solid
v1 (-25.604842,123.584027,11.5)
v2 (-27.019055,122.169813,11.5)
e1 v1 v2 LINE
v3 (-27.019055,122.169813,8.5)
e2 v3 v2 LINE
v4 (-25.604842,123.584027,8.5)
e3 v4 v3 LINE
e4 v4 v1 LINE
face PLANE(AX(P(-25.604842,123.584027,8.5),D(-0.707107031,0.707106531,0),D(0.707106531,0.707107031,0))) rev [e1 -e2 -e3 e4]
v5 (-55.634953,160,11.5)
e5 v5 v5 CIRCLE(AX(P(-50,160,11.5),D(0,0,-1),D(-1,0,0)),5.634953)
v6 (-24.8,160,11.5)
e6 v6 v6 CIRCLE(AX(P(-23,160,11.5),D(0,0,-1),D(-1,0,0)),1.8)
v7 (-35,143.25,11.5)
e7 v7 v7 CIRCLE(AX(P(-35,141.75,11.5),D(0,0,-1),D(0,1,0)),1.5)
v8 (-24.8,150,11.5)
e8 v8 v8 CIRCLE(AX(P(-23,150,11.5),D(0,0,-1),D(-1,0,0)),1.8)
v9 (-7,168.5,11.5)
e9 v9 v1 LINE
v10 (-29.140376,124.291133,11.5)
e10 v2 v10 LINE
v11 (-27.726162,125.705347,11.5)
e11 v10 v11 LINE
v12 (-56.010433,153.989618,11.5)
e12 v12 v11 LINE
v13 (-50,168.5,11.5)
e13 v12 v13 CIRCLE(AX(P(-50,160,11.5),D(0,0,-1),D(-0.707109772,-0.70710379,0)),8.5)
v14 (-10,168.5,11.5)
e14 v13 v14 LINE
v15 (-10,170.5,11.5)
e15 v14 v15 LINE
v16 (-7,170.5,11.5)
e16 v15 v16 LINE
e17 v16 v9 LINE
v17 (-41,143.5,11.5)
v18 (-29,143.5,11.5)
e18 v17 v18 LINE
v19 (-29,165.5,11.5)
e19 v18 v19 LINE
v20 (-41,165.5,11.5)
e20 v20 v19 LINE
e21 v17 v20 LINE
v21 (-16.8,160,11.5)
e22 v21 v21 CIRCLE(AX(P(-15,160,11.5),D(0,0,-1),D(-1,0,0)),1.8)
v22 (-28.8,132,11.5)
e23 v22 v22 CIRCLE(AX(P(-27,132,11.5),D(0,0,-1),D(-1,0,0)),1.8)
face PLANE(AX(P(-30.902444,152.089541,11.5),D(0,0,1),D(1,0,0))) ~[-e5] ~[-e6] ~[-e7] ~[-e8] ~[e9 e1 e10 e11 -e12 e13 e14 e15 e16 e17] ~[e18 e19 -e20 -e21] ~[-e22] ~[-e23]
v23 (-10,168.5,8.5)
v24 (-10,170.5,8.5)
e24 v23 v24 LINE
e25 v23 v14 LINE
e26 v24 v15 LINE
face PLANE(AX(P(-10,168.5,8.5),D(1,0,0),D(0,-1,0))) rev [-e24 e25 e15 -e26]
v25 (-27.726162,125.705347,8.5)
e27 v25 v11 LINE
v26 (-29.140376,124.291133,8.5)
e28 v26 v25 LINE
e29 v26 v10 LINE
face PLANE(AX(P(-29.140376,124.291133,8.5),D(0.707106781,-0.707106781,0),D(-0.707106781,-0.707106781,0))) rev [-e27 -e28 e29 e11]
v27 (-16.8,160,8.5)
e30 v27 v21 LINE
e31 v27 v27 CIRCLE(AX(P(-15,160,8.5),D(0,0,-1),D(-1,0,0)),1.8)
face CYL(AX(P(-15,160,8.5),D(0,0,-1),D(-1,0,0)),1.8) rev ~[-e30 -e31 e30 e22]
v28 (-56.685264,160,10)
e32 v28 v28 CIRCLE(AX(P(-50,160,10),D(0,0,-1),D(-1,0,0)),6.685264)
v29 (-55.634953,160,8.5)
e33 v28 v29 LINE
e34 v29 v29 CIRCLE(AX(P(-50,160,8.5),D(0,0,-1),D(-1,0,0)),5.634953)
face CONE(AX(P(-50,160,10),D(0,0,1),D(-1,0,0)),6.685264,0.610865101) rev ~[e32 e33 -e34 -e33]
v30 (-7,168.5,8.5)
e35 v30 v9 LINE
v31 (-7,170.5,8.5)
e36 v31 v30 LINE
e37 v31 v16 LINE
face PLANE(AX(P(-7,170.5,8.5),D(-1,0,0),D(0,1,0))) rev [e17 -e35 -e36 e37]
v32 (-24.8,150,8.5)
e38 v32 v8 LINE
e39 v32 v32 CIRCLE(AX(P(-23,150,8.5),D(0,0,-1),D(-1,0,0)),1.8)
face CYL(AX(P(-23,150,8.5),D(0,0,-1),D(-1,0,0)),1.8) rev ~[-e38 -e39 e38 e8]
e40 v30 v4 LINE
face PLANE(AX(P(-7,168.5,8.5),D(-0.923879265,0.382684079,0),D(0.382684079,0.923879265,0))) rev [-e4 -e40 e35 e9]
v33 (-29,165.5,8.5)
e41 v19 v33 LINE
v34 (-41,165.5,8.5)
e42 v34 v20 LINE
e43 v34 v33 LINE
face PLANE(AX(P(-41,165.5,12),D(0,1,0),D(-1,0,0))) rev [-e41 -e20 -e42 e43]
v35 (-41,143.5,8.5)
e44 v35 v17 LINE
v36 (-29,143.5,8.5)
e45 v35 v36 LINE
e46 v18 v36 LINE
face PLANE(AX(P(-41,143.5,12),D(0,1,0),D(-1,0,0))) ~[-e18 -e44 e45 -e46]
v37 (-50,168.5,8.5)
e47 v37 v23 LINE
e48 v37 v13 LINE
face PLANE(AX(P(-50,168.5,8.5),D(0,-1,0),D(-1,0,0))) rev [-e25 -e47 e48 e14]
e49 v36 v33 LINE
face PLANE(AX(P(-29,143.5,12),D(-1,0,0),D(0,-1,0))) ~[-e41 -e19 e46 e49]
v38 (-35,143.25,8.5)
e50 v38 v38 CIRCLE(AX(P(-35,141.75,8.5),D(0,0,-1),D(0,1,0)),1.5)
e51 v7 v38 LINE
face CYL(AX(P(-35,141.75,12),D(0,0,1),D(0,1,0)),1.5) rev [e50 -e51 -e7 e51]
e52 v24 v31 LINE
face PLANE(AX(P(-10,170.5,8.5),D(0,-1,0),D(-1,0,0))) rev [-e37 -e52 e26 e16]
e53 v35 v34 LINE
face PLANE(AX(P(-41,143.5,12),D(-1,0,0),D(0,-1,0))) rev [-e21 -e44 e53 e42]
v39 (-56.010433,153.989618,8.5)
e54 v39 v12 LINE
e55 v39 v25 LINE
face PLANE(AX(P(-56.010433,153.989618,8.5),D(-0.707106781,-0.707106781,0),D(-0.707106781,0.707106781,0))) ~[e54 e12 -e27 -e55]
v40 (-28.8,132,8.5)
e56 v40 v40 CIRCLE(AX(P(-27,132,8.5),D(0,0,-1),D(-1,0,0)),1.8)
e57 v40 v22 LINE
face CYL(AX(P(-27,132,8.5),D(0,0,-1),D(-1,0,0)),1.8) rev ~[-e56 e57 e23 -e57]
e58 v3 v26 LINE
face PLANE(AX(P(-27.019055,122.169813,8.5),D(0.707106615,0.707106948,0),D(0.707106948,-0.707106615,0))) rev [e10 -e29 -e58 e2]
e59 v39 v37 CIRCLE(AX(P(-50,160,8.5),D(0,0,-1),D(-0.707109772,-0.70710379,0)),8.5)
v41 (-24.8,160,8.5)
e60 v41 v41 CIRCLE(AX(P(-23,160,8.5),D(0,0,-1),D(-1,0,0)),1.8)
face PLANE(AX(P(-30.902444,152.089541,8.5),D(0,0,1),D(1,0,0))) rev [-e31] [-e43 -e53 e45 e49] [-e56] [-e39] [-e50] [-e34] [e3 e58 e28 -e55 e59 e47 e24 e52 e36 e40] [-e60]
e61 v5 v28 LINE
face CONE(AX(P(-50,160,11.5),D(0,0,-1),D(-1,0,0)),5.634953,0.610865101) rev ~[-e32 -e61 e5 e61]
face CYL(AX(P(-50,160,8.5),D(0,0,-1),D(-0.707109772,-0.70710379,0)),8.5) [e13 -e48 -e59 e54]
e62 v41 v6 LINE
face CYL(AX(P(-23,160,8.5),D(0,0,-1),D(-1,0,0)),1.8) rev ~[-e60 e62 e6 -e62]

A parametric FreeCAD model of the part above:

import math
import FreeCAD as App
import Part
import Sketcher
from FreeCAD import Vector
Q = App.Units.Quantity

doc = App.newDocument("Part")
params = doc.addObject("Spreadsheet::Sheet", "Params")
for row, (alias, value) in enumerate([
    ("sketch1_diameter", "3 mm"),
    ("sketch1_width", "12 mm"),
    ("sketch1_height", "22 mm"),
    ("pad1_length", "35 mm"),
    ("sketch2_diameter", "16 mm"),
    ("sketch2_diameter2", "3.6 mm"),
    ("sketch2_radius", "8.5 mm"),
    ("sketch2_width", "40 mm"),
    ("sketch2_width2", "3 mm"),
    ("pad2_length", "3 mm"),
    ("sketch3_height", "3 mm"),
    ("revolution_angle", "360 deg"),
], start=1):
    params.set(f"A{row}", alias)
    params.set(f"B{row}", "=" + value)
    params.setAlias(f"B{row}", alias)

body = doc.addObject("PartDesign::Body", "Body")
body.AllowCompound = True

# Sketch on XY plane
sketch1 = doc.addObject("Sketcher::SketchObject", "Sketch")
body.addObject(sketch1)
sketch1.AttachmentSupport = (doc.XY_Plane, [""])
sketch1.MapMode = "FlatFace"
sketch1.AttachmentOffset = App.Placement(Vector(0, 0, 12), App.Rotation())
sketch1.addGeometry([
    Part.Circle(Vector(35, 141.8, 0), Vector(0, 0, 1), 1.5),  # 0
    Part.LineSegment(Vector(29, 143.5, 0), Vector(41, 143.5, 0)),  # 1
    Part.LineSegment(Vector(41, 143.5, 0), Vector(41, 165.5, 0)),  # 2
    Part.LineSegment(Vector(41, 165.5, 0), Vector(29, 165.5, 0)),  # 3
    Part.LineSegment(Vector(29, 165.5, 0), Vector(29, 143.5, 0)),  # 4
], False)
sketch1.addConstraint([
    Sketcher.Constraint("Coincident", 1, 2, 2, 1),
    Sketcher.Constraint("Coincident", 2, 2, 3, 1),
    Sketcher.Constraint("Coincident", 3, 2, 4, 1),
    Sketcher.Constraint("Coincident", 4, 2, 1, 1),
    Sketcher.Constraint("Horizontal", 1),
    Sketcher.Constraint("Vertical", 2),
    Sketcher.Constraint("Horizontal", 3),
    Sketcher.Constraint("Vertical", 4),
    Sketcher.Constraint("Diameter", 0, 3.0),
    Sketcher.Constraint("DistanceX", 1, 1, 1, 2, 12.0),
    Sketcher.Constraint("DistanceY", 2, 1, 2, 2, 22.0),
    Sketcher.Constraint("DistanceX", -1, 1, 0, 3, 35.0),
    Sketcher.Constraint("DistanceX", -1, 1, 1, 2, 41.0),
    Sketcher.Constraint("DistanceY", -1, 1, 1, 2, 143.5),
    Sketcher.Constraint("DistanceY", -1, 1, 0, 3, 141.75),
])
sketch1.setExpression("Constraints[8]", "Params.sketch1_diameter")
sketch1.setExpression("Constraints[9]", "Params.sketch1_width")
sketch1.setExpression("Constraints[10]", "Params.sketch1_height")
pad1 = doc.addObject("PartDesign::Pad", "Pad")
body.addObject(pad1)
pad1.Profile = sketch1
pad1.setExpression("Length", "Params.pad1_length")
pad1.Midplane = True
body2 = doc.addObject("PartDesign::Body", "Body001")

# Sketch on XY plane
sketch2 = doc.addObject("Sketcher::SketchObject", "Sketch001")
body2.addObject(sketch2)
sketch2.AttachmentSupport = (doc.getObject("XY_Plane001"), [""])
sketch2.MapMode = "FlatFace"
sketch2.AttachmentOffset = App.Placement(Vector(0, 0, 8.5), App.Rotation())
sketch2.addGeometry([
    Part.ArcOfCircle(Part.Circle(Vector(50, 160, 0), Vector(0, 0, 1), 8.5), math.radians(-45), math.radians(90)),  # 0
    Part.LineSegment(Vector(50, 168.5, 0), Vector(10, 168.5, 0)),  # 1
    Part.LineSegment(Vector(10, 168.5, 0), Vector(10, 170.5, 0)),  # 2
    Part.LineSegment(Vector(10, 170.5, 0), Vector(7, 170.5, 0)),  # 3
    Part.LineSegment(Vector(7, 170.5, 0), Vector(7, 168.5, 0)),  # 4
    Part.LineSegment(Vector(7, 168.5, 0), Vector(25.6, 123.6, 0)),  # 5
    Part.LineSegment(Vector(25.6, 123.6, 0), Vector(27, 122.2, 0)),  # 6
    Part.LineSegment(Vector(27, 122.2, 0), Vector(29.1, 124.3, 0)),  # 7
    Part.LineSegment(Vector(29.1, 124.3, 0), Vector(27.7, 125.7, 0)),  # 8
    Part.LineSegment(Vector(27.7, 125.7, 0), Vector(56, 154, 0)),  # 9
    Part.Circle(Vector(27, 132, 0), Vector(0, 0, 1), 1.8),  # 10
    Part.Circle(Vector(23, 150, 0), Vector(0, 0, 1), 1.8),  # 11
    Part.Circle(Vector(15, 160, 0), Vector(0, 0, 1), 1.8),  # 12
    Part.Circle(Vector(23, 160, 0), Vector(0, 0, 1), 1.8),  # 13
    Part.Circle(Vector(50, 160, 0), Vector(0, 0, 1), 8),  # 14
], False)
sketch2.addConstraint([
    Sketcher.Constraint("Tangent", 0, 2, 1, 1),
    Sketcher.Constraint("Coincident", 1, 2, 2, 1),
    Sketcher.Constraint("Coincident", 2, 2, 3, 1),
    Sketcher.Constraint("Coincident", 3, 2, 4, 1),
    Sketcher.Constraint("Coincident", 4, 2, 5, 1),
    Sketcher.Constraint("Coincident", 5, 2, 6, 1),
    Sketcher.Constraint("Coincident", 6, 2, 7, 1),
    Sketcher.Constraint("Coincident", 7, 2, 8, 1),
    Sketcher.Constraint("Coincident", 8, 2, 9, 1),
    Sketcher.Constraint("Coincident", 9, 2, 0, 1),
    Sketcher.Constraint("Horizontal", 1),
    Sketcher.Constraint("Vertical", 2),
    Sketcher.Constraint("Horizontal", 3),
    Sketcher.Constraint("Vertical", 4),
    Sketcher.Constraint("Coincident", 14, 3, 0, 3),
    Sketcher.Constraint("Equal", 10, 11),
    Sketcher.Constraint("Equal", 11, 12),
    Sketcher.Constraint("Equal", 12, 13),
    Sketcher.Constraint("Perpendicular", 6, 7),
    Sketcher.Constraint("Perpendicular", 7, 8),
    Sketcher.Constraint("Perpendicular", 8, 9),
    Sketcher.Constraint("Horizontal", 0, 3, 12, 3),
    Sketcher.Constraint("Horizontal", 12, 3, 13, 3),
    Sketcher.Constraint("Horizontal", 1, 2, 4, 2),
    Sketcher.Constraint("Vertical", 11, 3, 13, 3),
    Sketcher.Constraint("Equal", 6, 8),
    Sketcher.Constraint("Diameter", 14, 16.0),
    Sketcher.Constraint("Diameter", 10, 3.6),
    Sketcher.Constraint("Radius", 0, 8.5),
    Sketcher.Constraint("DistanceX", 1, 2, 1, 1, 40.0),
    Sketcher.Constraint("DistanceX", 3, 2, 3, 1, 3.0),
    Sketcher.Constraint("DistanceY", 2, 1, 2, 2, 2.0),
    Sketcher.Constraint("Angle", 7, Q("44.999986 deg")),
    Sketcher.Constraint("Distance", 6, 2.0),
    Sketcher.Constraint("Distance", 7, 3.0),
    Sketcher.Constraint("Distance", 9, 40.0),
    Sketcher.Constraint("DistanceX", -1, 1, 0, 3, 50.0),
    Sketcher.Constraint("DistanceY", -1, 1, 0, 3, 160.0),
    Sketcher.Constraint("DistanceX", -1, 1, 10, 3, 27.0),
    Sketcher.Constraint("DistanceY", -1, 1, 10, 3, 132.0),
    Sketcher.Constraint("DistanceX", -1, 1, 11, 3, 23.0),
    Sketcher.Constraint("DistanceY", -1, 1, 11, 3, 150.0),
    Sketcher.Constraint("DistanceX", -1, 1, 12, 3, 15.0),
    Sketcher.Constraint("DistanceX", -1, 1, 8, 2, 27.726162),
])
sketch2.setExpression("Constraints[26]", "Params.sketch2_diameter")
sketch2.setExpression("Constraints[27]", "Params.sketch2_diameter2")
sketch2.setExpression("Constraints[28]", "Params.sketch2_radius")
sketch2.setExpression("Constraints[29]", "Params.sketch2_width")
sketch2.setExpression("Constraints[30]", "Params.sketch2_width2")
pad2 = doc.addObject("PartDesign::Pad", "Pad001")
body2.addObject(pad2)
pad2.Profile = sketch2
pad2.setExpression("Length", "Params.pad2_length")
body3 = doc.addObject("PartDesign::Body", "Body002")

# Sketch on XZ plane
sketch3 = doc.addObject("Sketcher::SketchObject", "Sketch002")
body3.addObject(sketch3)
sketch3.AttachmentSupport = (doc.getObject("XZ_Plane002"), [""])
sketch3.MapMode = "FlatFace"
sketch3.AttachmentOffset = App.Placement(Vector(0, 0, -160), App.Rotation())
sketch3.addGeometry([
    Part.LineSegment(Vector(55.6, 11.5, 0), Vector(56.7, 10, 0)),  # 0
    Part.LineSegment(Vector(56.7, 10, 0), Vector(55.6, 8.5, 0)),  # 1
    Part.LineSegment(Vector(55.6, 8.5, 0), Vector(58, 8.5, 0)),  # 2
    Part.LineSegment(Vector(58, 8.5, 0), Vector(58, 11.5, 0)),  # 3
    Part.LineSegment(Vector(58, 11.5, 0), Vector(55.6, 11.5, 0)),  # 4
], False)
sketch3.addGeometry(Part.LineSegment(Vector(50, 8.5, 0), Vector(50, 11.5, 0)), True)  # axis
sketch3.addConstraint([
    Sketcher.Constraint("Coincident", 0, 2, 1, 1),
    Sketcher.Constraint("Coincident", 1, 2, 2, 1),
    Sketcher.Constraint("Coincident", 2, 2, 3, 1),
    Sketcher.Constraint("Coincident", 3, 2, 4, 1),
    Sketcher.Constraint("Coincident", 4, 2, 0, 1),
    Sketcher.Constraint("Horizontal", 2),
    Sketcher.Constraint("Vertical", 3),
    Sketcher.Constraint("Horizontal", 4),
    Sketcher.Constraint("Vertical", 5),
    Sketcher.Constraint("Horizontal", 2, 2, 5, 1),
    Sketcher.Constraint("Horizontal", 4, 2, 5, 2),
    Sketcher.Constraint("Vertical", 1, 2, 4, 2),
    Sketcher.Constraint("Equal", 0, 1),
    Sketcher.Constraint("DistanceY", 3, 1, 3, 2, 3.0),
    Sketcher.Constraint("Angle", 0, Q("-55.000008 deg")),
    Sketcher.Constraint("DistanceY", -1, 1, 0, 2, 10.0),
    Sketcher.Constraint("DistanceX", -1, 1, 2, 2, 58.0),
    Sketcher.Constraint("DistanceX", -1, 1, 5, 1, 50.0),
    Sketcher.Constraint("DistanceX", 2, 1, 2, 2, 2.365047),
])
sketch3.setExpression("Constraints[13]", "Params.sketch3_height")
revolution = doc.addObject("PartDesign::Revolution", "Revolution")
body3.addObject(revolution)
revolution.Profile = sketch3
revolution.ReferenceAxis = (sketch3, ["Axis0"])
revolution.setExpression("Angle", "Params.revolution_angle")
doc.recompute()

boolean = doc.addObject("PartDesign::Boolean", "Boolean")
body3.addObject(boolean)
boolean.Type = "Fuse"
boolean.addObjects([body2])
doc.recompute()

boolean2 = doc.addObject("PartDesign::Boolean", "Boolean001")
body3.addObject(boolean2)
boolean2.Type = "Cut"
boolean2.addObjects([body])
body4 = doc.addObject("PartDesign::Body", "Body003")
doc.recompute()

mirroring = doc.addObject("Part::Mirroring", "Mirroring")
mirroring.Source = body3
mirroring.Base = Vector(0, 0, 0)
mirroring.Normal = Vector(1, 0, 0)
body4.BaseFeature = mirroring
doc.recompute()
body3.Visibility = False
mirroring.Visibility = False

doc.recompute()
